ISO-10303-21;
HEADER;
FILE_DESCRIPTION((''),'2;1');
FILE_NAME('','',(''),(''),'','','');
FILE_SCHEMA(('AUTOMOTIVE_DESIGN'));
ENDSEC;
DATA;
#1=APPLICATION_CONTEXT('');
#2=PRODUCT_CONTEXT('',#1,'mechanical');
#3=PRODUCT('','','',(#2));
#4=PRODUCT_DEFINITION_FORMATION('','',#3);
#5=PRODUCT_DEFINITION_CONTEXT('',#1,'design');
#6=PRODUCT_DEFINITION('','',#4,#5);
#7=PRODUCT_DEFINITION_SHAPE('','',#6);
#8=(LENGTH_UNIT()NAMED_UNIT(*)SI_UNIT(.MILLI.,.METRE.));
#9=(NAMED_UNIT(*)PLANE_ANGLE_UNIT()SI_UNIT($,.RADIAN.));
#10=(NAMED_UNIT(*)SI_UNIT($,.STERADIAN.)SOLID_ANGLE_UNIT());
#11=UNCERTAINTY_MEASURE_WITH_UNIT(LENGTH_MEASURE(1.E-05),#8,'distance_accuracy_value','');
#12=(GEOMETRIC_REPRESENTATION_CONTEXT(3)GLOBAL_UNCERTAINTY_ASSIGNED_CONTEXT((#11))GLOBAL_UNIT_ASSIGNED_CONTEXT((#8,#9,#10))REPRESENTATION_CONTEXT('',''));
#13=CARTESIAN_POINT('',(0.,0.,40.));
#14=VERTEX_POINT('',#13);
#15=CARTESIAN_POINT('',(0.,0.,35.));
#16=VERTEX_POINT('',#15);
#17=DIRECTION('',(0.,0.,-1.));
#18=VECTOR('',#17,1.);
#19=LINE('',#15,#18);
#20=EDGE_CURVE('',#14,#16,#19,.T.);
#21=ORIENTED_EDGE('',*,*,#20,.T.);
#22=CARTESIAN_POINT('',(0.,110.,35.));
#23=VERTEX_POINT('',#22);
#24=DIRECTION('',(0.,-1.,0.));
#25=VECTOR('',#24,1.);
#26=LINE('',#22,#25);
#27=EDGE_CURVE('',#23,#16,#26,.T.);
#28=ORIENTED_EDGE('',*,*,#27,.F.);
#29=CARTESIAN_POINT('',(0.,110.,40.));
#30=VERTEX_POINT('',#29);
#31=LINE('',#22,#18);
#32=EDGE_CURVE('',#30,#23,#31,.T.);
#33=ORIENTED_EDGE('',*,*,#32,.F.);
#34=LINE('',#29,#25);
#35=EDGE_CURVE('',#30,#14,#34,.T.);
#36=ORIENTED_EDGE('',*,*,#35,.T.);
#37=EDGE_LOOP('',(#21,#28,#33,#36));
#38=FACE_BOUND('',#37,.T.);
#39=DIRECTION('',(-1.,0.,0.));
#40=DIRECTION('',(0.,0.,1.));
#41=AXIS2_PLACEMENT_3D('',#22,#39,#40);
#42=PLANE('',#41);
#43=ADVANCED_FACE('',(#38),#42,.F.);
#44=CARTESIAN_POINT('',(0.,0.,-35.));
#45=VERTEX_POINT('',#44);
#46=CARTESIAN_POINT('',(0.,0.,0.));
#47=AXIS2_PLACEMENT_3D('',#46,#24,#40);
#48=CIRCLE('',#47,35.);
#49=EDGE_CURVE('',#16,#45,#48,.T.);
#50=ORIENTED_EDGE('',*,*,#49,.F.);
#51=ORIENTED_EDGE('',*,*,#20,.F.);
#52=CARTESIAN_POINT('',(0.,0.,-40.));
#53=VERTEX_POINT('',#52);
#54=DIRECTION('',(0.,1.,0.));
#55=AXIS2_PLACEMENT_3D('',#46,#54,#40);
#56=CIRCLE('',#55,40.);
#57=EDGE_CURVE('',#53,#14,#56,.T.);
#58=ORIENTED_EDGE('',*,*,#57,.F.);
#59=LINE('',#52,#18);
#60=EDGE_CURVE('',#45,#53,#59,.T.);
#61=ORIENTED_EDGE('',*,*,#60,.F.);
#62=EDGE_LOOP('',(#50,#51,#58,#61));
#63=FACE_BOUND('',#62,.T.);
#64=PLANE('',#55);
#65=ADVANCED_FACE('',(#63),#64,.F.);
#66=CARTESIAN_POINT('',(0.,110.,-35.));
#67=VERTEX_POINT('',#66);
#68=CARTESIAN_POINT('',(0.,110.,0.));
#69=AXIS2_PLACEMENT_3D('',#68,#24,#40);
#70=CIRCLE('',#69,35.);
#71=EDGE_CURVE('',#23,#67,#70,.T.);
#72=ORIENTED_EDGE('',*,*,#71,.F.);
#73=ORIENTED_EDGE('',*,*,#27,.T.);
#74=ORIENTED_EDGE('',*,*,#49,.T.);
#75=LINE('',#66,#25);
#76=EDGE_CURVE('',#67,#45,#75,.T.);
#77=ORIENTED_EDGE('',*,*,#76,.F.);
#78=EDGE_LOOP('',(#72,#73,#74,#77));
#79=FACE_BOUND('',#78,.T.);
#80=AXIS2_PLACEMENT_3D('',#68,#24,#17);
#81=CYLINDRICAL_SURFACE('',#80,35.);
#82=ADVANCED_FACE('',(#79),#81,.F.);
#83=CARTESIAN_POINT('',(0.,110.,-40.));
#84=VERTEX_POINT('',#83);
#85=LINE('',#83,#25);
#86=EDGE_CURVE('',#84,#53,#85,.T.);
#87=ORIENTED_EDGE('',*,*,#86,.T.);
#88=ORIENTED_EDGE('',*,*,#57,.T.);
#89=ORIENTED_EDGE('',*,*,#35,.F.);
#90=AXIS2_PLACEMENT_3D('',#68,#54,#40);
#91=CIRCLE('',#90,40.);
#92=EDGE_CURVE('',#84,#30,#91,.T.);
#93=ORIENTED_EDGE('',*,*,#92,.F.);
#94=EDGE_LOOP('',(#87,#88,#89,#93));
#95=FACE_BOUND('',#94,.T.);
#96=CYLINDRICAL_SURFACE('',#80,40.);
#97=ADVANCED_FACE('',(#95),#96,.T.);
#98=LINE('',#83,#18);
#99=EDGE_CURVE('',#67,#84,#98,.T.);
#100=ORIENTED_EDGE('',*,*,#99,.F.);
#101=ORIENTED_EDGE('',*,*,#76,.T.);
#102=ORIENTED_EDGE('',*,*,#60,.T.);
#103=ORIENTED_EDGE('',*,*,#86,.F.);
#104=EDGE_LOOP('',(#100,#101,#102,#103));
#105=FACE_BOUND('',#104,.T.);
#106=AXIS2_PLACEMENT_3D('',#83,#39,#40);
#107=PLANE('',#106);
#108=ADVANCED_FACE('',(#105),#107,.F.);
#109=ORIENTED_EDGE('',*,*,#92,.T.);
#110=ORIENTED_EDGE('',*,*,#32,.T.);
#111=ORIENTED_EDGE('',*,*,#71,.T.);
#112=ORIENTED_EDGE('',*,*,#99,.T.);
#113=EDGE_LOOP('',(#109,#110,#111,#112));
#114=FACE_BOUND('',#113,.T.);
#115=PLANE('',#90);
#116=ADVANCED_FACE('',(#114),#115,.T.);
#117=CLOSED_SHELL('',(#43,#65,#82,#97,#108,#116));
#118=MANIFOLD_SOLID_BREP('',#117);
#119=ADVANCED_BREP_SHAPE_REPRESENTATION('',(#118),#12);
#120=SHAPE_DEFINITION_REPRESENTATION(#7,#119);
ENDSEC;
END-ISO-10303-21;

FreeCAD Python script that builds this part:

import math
import FreeCAD as App
import Part
import Sketcher
from FreeCAD import Vector

doc = App.newDocument("Part")
body = doc.addObject("PartDesign::Body", "Body")

# Sketch on XZ plane
sketch1 = body.newObject("Sketcher::SketchObject", "Sketch")
sketch1.AttachmentSupport = (doc.getObject("XZ_Plane"), [""])
sketch1.MapMode = "FlatFace"
sketch1.addGeometry([
    Part.LineSegment(Vector(0, -35, 0), Vector(0, -40, 0)),
    Part.ArcOfCircle(Part.Circle(Vector(0, 0, 0), Vector(0, 0, 1), 40), math.radians(90), math.radians(270)),
    Part.LineSegment(Vector(0, 40, 0), Vector(0, 35, 0)),
    Part.ArcOfCircle(Part.Circle(Vector(0, 0, 0), Vector(0, 0, 1), 35), math.radians(90), math.radians(270)),
], False)
sketch1.addConstraint([
    Sketcher.Constraint("Coincident", 0, 2, 1, 2),
    Sketcher.Constraint("Coincident", 1, 1, 2, 1),
    Sketcher.Constraint("Coincident", 2, 2, 3, 1),
    Sketcher.Constraint("Coincident", 3, 2, 0, 1),
    Sketcher.Constraint("Vertical", 0),
    Sketcher.Constraint("Vertical", 2),
    Sketcher.Constraint("Coincident", 1, 3, -1, 1),
    Sketcher.Constraint("Coincident", 3, 3, -1, 1),
    Sketcher.Constraint("PointOnObject", 0, 2, -2),
    Sketcher.Constraint("PointOnObject", 1, 1, -2),
    Sketcher.Constraint("Radius", 1, 40.0),
    Sketcher.Constraint("Radius", 3, 35.0),
])
pad1 = body.newObject("PartDesign::Pad", "Pad")
pad1.Profile = sketch1
pad1.Length = 110
pad1.Reversed = True

doc.recompute()
